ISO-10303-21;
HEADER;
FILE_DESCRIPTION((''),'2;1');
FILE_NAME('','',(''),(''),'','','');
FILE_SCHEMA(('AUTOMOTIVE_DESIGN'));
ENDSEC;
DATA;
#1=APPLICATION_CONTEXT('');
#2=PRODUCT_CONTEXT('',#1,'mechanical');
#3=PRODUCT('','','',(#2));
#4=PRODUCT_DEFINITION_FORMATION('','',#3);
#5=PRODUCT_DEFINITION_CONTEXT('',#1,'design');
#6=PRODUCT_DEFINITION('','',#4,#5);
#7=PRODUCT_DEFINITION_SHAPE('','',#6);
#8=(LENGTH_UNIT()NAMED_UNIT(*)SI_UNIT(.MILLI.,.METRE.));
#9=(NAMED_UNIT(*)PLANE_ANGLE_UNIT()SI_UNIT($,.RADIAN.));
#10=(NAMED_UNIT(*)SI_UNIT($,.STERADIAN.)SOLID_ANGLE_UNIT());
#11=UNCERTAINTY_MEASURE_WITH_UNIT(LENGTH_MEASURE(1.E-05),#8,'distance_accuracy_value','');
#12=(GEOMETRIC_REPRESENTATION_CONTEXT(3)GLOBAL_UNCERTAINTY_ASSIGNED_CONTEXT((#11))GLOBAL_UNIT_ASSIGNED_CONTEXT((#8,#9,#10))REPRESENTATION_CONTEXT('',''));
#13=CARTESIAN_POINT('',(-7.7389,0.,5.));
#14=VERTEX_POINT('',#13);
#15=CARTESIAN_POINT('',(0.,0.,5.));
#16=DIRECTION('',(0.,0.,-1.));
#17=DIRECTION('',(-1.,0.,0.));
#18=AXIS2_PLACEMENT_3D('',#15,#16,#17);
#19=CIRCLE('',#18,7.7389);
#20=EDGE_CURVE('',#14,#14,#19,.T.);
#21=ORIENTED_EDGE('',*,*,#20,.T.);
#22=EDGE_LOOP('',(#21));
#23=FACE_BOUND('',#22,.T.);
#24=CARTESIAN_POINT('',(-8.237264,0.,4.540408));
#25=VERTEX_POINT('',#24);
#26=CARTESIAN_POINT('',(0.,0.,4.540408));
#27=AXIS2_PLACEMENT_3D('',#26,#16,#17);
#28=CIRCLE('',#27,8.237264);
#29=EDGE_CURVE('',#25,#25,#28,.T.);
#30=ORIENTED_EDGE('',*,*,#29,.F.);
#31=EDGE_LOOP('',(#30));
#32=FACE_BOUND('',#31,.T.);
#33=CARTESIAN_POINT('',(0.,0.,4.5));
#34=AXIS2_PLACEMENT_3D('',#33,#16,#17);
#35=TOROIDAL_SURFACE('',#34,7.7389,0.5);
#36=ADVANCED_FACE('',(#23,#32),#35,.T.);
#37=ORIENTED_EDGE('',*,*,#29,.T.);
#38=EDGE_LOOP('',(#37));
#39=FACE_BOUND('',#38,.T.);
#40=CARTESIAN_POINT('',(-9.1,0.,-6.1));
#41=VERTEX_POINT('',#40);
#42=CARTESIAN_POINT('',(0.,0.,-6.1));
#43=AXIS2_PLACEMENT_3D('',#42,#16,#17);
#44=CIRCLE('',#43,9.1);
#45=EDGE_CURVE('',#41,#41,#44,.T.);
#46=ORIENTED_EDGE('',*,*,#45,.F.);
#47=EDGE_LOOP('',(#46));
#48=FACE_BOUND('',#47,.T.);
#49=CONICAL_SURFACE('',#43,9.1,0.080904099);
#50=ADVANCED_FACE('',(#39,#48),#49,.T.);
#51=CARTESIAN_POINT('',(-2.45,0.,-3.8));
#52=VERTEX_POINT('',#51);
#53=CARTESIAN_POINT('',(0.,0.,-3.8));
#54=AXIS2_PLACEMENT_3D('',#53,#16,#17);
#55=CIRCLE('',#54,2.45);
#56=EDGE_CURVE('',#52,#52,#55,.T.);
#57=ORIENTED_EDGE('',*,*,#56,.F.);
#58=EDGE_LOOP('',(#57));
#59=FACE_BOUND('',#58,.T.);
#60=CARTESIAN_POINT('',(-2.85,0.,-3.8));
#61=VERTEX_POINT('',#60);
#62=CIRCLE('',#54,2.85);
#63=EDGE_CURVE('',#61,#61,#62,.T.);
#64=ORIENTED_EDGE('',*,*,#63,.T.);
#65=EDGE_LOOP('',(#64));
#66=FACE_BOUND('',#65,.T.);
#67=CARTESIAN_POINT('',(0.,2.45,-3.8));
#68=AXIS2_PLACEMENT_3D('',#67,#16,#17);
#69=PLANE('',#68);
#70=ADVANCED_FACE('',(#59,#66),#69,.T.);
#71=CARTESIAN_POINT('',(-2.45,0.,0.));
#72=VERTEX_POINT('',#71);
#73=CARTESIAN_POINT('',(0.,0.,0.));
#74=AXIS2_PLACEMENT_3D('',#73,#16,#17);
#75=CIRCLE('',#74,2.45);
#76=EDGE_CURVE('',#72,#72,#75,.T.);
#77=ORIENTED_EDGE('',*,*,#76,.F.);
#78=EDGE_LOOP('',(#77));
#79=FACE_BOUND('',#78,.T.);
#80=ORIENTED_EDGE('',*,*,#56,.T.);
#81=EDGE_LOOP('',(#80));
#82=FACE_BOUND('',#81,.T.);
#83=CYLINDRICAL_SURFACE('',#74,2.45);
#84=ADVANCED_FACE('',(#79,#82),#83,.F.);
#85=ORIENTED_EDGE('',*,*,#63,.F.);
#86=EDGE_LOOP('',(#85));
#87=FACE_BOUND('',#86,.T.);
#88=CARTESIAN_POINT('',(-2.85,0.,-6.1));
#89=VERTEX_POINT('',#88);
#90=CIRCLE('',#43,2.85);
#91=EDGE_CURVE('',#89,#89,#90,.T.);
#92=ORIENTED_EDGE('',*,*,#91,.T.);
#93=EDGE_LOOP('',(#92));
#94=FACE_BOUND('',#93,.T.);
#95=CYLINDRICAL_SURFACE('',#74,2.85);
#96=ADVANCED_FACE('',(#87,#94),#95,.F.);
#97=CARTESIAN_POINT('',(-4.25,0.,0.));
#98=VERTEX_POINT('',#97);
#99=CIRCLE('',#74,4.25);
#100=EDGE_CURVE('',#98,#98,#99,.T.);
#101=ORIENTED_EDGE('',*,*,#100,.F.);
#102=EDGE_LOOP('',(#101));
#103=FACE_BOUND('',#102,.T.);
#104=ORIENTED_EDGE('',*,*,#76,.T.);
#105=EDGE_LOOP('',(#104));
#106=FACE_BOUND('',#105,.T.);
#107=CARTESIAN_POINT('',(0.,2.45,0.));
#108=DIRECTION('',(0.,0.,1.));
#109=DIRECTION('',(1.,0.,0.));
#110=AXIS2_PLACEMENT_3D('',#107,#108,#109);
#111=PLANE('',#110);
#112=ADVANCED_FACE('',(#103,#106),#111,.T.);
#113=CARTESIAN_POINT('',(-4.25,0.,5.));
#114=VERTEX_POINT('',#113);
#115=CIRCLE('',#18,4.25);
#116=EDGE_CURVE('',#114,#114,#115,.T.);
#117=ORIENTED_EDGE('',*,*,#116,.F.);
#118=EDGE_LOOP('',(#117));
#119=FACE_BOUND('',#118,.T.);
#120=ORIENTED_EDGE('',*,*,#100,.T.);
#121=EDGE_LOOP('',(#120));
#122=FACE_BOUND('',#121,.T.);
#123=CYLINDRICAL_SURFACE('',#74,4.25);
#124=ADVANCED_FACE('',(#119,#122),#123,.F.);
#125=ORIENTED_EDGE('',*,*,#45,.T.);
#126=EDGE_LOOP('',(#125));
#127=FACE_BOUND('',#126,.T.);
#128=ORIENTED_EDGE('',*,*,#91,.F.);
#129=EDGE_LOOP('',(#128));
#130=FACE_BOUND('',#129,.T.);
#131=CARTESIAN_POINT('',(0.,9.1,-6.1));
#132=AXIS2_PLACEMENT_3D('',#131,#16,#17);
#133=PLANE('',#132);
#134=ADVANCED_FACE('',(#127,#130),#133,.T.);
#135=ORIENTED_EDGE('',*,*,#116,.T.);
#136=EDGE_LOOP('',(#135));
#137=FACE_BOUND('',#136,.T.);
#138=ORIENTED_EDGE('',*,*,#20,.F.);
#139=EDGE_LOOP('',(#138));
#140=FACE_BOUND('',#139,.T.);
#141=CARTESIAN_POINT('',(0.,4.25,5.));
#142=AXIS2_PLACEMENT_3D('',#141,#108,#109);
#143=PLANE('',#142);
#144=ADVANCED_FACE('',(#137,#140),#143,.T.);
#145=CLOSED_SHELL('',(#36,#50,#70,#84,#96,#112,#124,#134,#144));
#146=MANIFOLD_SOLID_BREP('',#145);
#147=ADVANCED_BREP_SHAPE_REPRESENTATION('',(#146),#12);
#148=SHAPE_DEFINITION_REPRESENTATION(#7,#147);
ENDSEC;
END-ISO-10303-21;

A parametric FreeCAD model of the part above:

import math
import FreeCAD as App
import Part
import Sketcher

V = App.Vector

doc = App.newDocument("Part")
body = doc.addObject("PartDesign::Body", "Body")

sketch1 = doc.addObject("Sketcher::SketchObject", "Sketch")
body.addObject(sketch1)
sketch1.AttachmentSupport = (doc.YZ_Plane, [""])
sketch1.MapMode = "FlatFace"
sketch1.addGeometry(Part.LineSegment(V(4.25, 0, 0), V(2.45, 0, 0)), False)
sketch1.addGeometry(Part.LineSegment(V(2.45, 0, 0), V(2.45, -3.8, 0)), False)
sketch1.addGeometry(Part.LineSegment(V(2.45, -3.8, 0), V(2.85, -3.8, 0)), False)
sketch1.addGeometry(Part.LineSegment(V(2.85, -3.8, 0), V(2.85, -6.1, 0)), False)
sketch1.addGeometry(Part.LineSegment(V(2.85, -6.1, 0), V(9.1, -6.1, 0)), False)
sketch1.addGeometry(Part.LineSegment(V(9.1, -6.1, 0), V(8.237264, 4.540408, 0)), False)
sketch1.addGeometry(Part.ArcOfCircle(Part.Circle(V(7.7389, 4.5, 0), V(0, 0, 1), 0.5), math.radians(4.635463), math.radians(90)), False)
sketch1.addGeometry(Part.LineSegment(V(7.7389, 5, 0), V(4.25, 5, 0)), False)
sketch1.addGeometry(Part.LineSegment(V(4.25, 5, 0), V(4.25, 0, 0)), False)
sketch1.addConstraint(Sketcher.Constraint("Coincident", 0, 2, 1, 1))
sketch1.addConstraint(Sketcher.Constraint("Coincident", 1, 2, 2, 1))
sketch1.addConstraint(Sketcher.Constraint("Coincident", 2, 2, 3, 1))
sketch1.addConstraint(Sketcher.Constraint("Coincident", 3, 2, 4, 1))
sketch1.addConstraint(Sketcher.Constraint("Coincident", 4, 2, 5, 1))
sketch1.addConstraint(Sketcher.Constraint("Tangent", 5, 2, 6, 1))
sketch1.addConstraint(Sketcher.Constraint("Tangent", 6, 2, 7, 1))
sketch1.addConstraint(Sketcher.Constraint("Coincident", 7, 2, 8, 1))
sketch1.addConstraint(Sketcher.Constraint("Coincident", 8, 2, 0, 1))
sketch1.addConstraint(Sketcher.Constraint("Horizontal", 0))
sketch1.addConstraint(Sketcher.Constraint("Vertical", 1))
sketch1.addConstraint(Sketcher.Constraint("Horizontal", 2))
sketch1.addConstraint(Sketcher.Constraint("Vertical", 3))
sketch1.addConstraint(Sketcher.Constraint("Horizontal", 4))
sketch1.addConstraint(Sketcher.Constraint("Horizontal", 7))
sketch1.addConstraint(Sketcher.Constraint("Vertical", 8))
sketch1.addConstraint(Sketcher.Constraint("PointOnObject", 0, 2, -1))
sketch1.addConstraint(Sketcher.Constraint("Radius", 6, 0.5))
sketch1.addConstraint(Sketcher.Constraint("DistanceY", 8, 2, 8, 1, 5.0))
sketch1.addConstraint(Sketcher.Constraint("DistanceX", 0, 2, 0, 1, 1.8))
sketch1.addConstraint(Sketcher.Constraint("DistanceX", 2, 1, 2, 2, 0.4))
sketch1.addConstraint(Sketcher.Constraint("DistanceY", 1, 2, 1, 1, 3.8))
sketch1.addConstraint(Sketcher.Constraint("DistanceY", 3, 2, 3, 1, 2.3))
sketch1.addConstraint(Sketcher.Constraint("DistanceX", 4, 1, 4, 2, 6.25))
sketch1.addConstraint(Sketcher.Constraint("DistanceX", -1, 1, 4, 2, 9.1))
sketch1.addConstraint(Sketcher.Constraint("DistanceX", 7, 2, 7, 1, 3.4889))
revolution = doc.addObject("PartDesign::Revolution", "Revolution")
body.addObject(revolution)
revolution.Profile = sketch1
revolution.ReferenceAxis = (sketch1, ["V_Axis"])
revolution.Angle = 360

doc.recompute()
